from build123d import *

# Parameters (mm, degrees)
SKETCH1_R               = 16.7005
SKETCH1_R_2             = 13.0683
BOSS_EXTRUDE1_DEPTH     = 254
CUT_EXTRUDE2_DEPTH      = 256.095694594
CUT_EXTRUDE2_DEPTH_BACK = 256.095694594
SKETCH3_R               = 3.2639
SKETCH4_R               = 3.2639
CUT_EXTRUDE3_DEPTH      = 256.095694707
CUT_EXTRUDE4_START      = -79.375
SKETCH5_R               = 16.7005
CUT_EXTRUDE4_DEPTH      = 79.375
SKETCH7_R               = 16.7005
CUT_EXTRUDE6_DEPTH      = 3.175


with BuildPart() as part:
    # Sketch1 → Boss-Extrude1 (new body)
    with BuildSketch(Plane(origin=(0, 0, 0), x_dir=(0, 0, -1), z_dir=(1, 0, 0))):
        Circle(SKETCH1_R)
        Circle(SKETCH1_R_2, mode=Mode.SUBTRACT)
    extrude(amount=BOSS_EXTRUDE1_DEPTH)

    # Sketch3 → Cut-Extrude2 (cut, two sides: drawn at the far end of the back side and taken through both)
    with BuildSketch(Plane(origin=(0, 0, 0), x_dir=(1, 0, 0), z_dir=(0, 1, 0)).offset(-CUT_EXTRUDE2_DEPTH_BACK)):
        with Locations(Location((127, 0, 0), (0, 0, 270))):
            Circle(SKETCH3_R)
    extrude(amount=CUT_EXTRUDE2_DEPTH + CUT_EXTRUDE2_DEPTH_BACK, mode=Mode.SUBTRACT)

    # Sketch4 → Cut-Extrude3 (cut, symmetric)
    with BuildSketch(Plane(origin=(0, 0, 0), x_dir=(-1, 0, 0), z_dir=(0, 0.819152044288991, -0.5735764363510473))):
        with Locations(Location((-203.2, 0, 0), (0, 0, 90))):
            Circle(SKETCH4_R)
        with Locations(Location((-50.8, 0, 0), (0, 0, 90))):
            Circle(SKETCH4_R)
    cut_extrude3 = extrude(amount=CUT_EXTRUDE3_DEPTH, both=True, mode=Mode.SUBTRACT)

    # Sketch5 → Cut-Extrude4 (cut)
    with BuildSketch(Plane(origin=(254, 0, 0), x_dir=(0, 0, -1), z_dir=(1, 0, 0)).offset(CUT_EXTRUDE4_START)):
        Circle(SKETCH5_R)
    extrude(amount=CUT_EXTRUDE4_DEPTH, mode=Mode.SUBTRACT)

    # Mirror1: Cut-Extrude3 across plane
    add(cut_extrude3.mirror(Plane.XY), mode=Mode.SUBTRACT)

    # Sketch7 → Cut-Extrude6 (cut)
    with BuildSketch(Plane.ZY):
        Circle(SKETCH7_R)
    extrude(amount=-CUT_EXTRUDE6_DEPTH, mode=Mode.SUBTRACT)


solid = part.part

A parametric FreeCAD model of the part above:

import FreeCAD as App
import Part
import Sketcher

V = App.Vector
Q = App.Units.Quantity

doc = App.newDocument("Part")
body = doc.addObject("PartDesign::Body", "Body")

# Sketch on YZ plane
sketch1 = doc.addObject("Sketcher::SketchObject", "Sketch")
body.addObject(sketch1)
sketch1.AttachmentSupport = (doc.YZ_Plane, [""])
sketch1.MapMode = "FlatFace"
sketch1.addGeometry([
    Part.Circle(V(0, 0, 0), V(0, 0, 1), 16.7005),
    Part.Circle(V(0, 0, 0), V(0, 0, 1), 13.0683),
], False)
sketch1.addConstraint([
    Sketcher.Constraint("Coincident", 0, 3, -1, 1),
    Sketcher.Constraint("Coincident", 1, 3, -1, 1),
    Sketcher.Constraint("Diameter", 0, Q("1.315 in")),
    Sketcher.Constraint("Diameter", 1, Q("1.029 in")),
])
pad1 = doc.addObject("PartDesign::Pad", "Pad")
body.addObject(pad1)
pad1.Profile = sketch1
pad1.Length = Q("10 in")

# Sketch on XZ plane
sketch2 = doc.addObject("Sketcher::SketchObject", "Sketch001")
body.addObject(sketch2)
sketch2.AttachmentSupport = (doc.XZ_Plane, [""])
sketch2.MapMode = "FlatFace"
sketch2.addGeometry(Part.Circle(V(127, 0, 0), V(0, 0, 1), 3.2639), False)
sketch2.addConstraint([
    Sketcher.Constraint("PointOnObject", 0, 3, -1),
    Sketcher.Constraint("Diameter", 0, Q("0.257 in")),
    Sketcher.Constraint("DistanceX", -1, 1, 0, 3, Q("5 in")),
])
pocket1 = doc.addObject("PartDesign::Pocket", "Pocket")
body.addObject(pocket1)
pocket1.Profile = sketch2
pocket1.Type = "ThroughAll"
pocket1.Midplane = True

# Sketch on an angled plane
sketch3 = doc.addObject("Sketcher::SketchObject", "Sketch002")
body.addObject(sketch3)
sketch3.Placement = App.Placement(V(0, 0, 0), App.Rotation(V(-1, 0, 0), V(0, 0.573576436, 0.819152044), V(0, 0.819152044, -0.573576436), "ZXY"))
sketch3.addGeometry([
    Part.Circle(V(-203.2, 0, 0), V(0, 0, 1), 3.2639),
    Part.Circle(V(-50.8, 0, 0), V(0, 0, 1), 3.2639),
], False)
sketch3.addConstraint([
    Sketcher.Constraint("Equal", 0, 1),
    Sketcher.Constraint("PointOnObject", 0, 3, -1),
    Sketcher.Constraint("PointOnObject", 1, 3, -1),
    Sketcher.Constraint("Diameter", 0, Q("0.257 in")),
    Sketcher.Constraint("DistanceX", 0, 3, -1, 1, Q("8 in")),
    Sketcher.Constraint("DistanceX", 1, 3, -1, 1, Q("2 in")),
])
pocket2 = doc.addObject("PartDesign::Pocket", "Pocket001")
body.addObject(pocket2)
pocket2.Profile = sketch3
pocket2.Length = 512.191389
pocket2.Midplane = True

# Sketch on YZ plane
sketch4 = doc.addObject("Sketcher::SketchObject", "Sketch003")
body.addObject(sketch4)
sketch4.AttachmentSupport = (doc.YZ_Plane, [""])
sketch4.MapMode = "FlatFace"
sketch4.AttachmentOffset = App.Placement(V(0, 0, 6.875 * 25.4), App.Rotation())
sketch4.addGeometry(Part.Circle(V(0, 0, 0), V(0, 0, 1), 16.7005), False)
sketch4.addConstraint([
    Sketcher.Constraint("Coincident", 0, 3, -1, 1),
    Sketcher.Constraint("Diameter", 0, Q("1.315 in")),
])
pocket3 = doc.addObject("PartDesign::Pocket", "Pocket002")
body.addObject(pocket3)
pocket3.Profile = sketch4
pocket3.Length = Q("3.125 in")
pocket3.Reversed = True
doc.recompute()

mirrored = doc.addObject("PartDesign::Mirrored", "Mirrored")
body.addObject(mirrored)
mirrored.Originals = [pocket2]
mirrored.MirrorPlane = (doc.XY_Plane, [""])
body.Tip = mirrored

# Sketch on YZ plane
sketch5 = doc.addObject("Sketcher::SketchObject", "Sketch004")
body.addObject(sketch5)
sketch5.AttachmentSupport = (doc.YZ_Plane, [""])
sketch5.MapMode = "FlatFace"
sketch5.addGeometry(Part.Circle(V(0, 0, 0), V(0, 0, 1), 16.7005), False)
sketch5.addConstraint([
    Sketcher.Constraint("Coincident", 0, 3, -1, 1),
    Sketcher.Constraint("Diameter", 0, Q("1.315 in")),
])
pocket4 = doc.addObject("PartDesign::Pocket", "Pocket003")
body.addObject(pocket4)
pocket4.Profile = sketch5
pocket4.Length = Q("0.125 in")
pocket4.Reversed = True

doc.recompute()
